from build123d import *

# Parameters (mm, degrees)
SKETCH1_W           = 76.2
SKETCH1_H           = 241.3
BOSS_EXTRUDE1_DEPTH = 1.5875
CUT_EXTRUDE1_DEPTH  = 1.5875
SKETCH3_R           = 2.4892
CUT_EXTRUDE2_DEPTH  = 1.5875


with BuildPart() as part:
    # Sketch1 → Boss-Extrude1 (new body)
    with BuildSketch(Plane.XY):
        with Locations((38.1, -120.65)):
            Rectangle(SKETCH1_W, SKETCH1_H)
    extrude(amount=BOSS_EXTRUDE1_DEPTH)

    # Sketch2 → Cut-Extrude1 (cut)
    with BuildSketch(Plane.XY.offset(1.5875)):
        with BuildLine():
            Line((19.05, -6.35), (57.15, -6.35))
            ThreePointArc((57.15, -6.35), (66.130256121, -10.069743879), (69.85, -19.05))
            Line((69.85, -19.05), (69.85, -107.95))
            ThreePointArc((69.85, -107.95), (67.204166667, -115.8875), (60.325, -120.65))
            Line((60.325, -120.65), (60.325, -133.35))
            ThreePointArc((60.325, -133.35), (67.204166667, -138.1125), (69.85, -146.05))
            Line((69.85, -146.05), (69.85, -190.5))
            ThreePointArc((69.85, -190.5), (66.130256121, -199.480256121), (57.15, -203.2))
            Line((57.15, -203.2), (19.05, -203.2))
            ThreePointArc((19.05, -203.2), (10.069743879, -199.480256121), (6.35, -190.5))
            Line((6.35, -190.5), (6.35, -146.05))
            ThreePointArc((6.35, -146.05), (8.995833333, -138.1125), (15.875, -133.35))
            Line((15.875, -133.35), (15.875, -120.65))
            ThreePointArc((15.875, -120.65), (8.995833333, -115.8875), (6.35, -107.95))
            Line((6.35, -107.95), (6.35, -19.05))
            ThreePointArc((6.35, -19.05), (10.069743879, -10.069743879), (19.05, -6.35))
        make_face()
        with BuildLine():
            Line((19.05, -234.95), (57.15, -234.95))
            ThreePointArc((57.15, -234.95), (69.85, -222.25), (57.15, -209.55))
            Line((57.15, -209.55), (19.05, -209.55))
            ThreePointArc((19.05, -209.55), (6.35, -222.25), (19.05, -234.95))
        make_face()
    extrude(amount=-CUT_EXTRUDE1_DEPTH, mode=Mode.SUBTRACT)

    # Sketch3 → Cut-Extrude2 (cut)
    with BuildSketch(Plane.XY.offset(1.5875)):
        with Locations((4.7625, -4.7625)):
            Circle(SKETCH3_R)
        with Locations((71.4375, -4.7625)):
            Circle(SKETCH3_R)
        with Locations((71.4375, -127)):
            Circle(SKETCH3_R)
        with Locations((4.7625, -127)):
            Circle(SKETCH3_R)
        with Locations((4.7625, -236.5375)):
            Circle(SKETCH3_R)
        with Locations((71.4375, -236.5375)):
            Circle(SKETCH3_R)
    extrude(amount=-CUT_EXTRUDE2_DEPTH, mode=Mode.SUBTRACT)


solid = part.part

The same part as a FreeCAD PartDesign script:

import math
import FreeCAD as App
import Part
import Sketcher

V = App.Vector
Q = App.Units.Quantity

doc = App.newDocument("Part")
body = doc.addObject("PartDesign::Body", "Body")

# Sketch on XY plane
sketch1 = body.newObject("Sketcher::SketchObject", "Sketch")
sketch1.AttachmentSupport = (doc.getObject("XY_Plane"), [""])
sketch1.MapMode = "FlatFace"
sketch1.addGeometry(Part.LineSegment(V(0, 0, 0), V(0, -241, 0)), False)
sketch1.addGeometry(Part.LineSegment(V(0, -241, 0), V(76, -241, 0)), False)
sketch1.addGeometry(Part.LineSegment(V(76, -241, 0), V(76, 0, 0)), False)
sketch1.addGeometry(Part.LineSegment(V(76, 0, 0), V(0, 0, 0)), False)
sketch1.addConstraint(Sketcher.Constraint("Coincident", 0, 2, 1, 1))
sketch1.addConstraint(Sketcher.Constraint("Coincident", 1, 2, 2, 1))
sketch1.addConstraint(Sketcher.Constraint("Coincident", 2, 2, 3, 1))
sketch1.addConstraint(Sketcher.Constraint("Coincident", 3, 2, 0, 1))
sketch1.addConstraint(Sketcher.Constraint("Vertical", 0))
sketch1.addConstraint(Sketcher.Constraint("Horizontal", 1))
sketch1.addConstraint(Sketcher.Constraint("Vertical", 2))
sketch1.addConstraint(Sketcher.Constraint("Horizontal", 3))
sketch1.addConstraint(Sketcher.Constraint("Coincident", 3, 2, -1, 1))
sketch1.addConstraint(Sketcher.Constraint("DistanceX", 1, 1, 1, 2, Q("3 in")))
sketch1.addConstraint(Sketcher.Constraint("DistanceY", 0, 2, 0, 1, Q("9.5 in")))
pad1 = body.newObject("PartDesign::Pad", "Pad")
pad1.Profile = sketch1
pad1.Length = Q("0.0625 in")

# Sketch on XY plane
sketch2 = body.newObject("Sketcher::SketchObject", "Sketch001")
sketch2.AttachmentSupport = (doc.getObject("XY_Plane"), [""])
sketch2.MapMode = "FlatFace"
sketch2.AttachmentOffset = App.Placement(V(0, 0, 0.0625 * 25.4), App.Rotation())
sketch2.addGeometry(Part.LineSegment(V(57, -6, 0), V(19, -6, 0)), False)
sketch2.addGeometry(Part.ArcOfCircle(Part.Circle(V(19, -19, 0), V(0, 0, 1), 13), math.radians(90), math.radians(180)), False)
sketch2.addGeometry(Part.LineSegment(V(6, -19, 0), V(6, -108, 0)), False)
sketch2.addGeometry(Part.ArcOfCircle(Part.Circle(V(20, -108, 0), V(0, 0, 1), 13), math.radians(180), math.radians(254)), False)
sketch2.addGeometry(Part.LineSegment(V(16, -121, 0), V(16, -133, 0)), False)
sketch2.addGeometry(Part.ArcOfCircle(Part.Circle(V(20, -146, 0), V(0, 0, 1), 13), math.radians(106), math.radians(180)), False)
sketch2.addGeometry(Part.LineSegment(V(6, -146, 0), V(6, -190, 0)), False)
sketch2.addGeometry(Part.ArcOfCircle(Part.Circle(V(19, -190, 0), V(0, 0, 1), 13), math.radians(180), math.radians(270)), False)
sketch2.addGeometry(Part.LineSegment(V(19, -203, 0), V(57, -203, 0)), False)
sketch2.addGeometry(Part.ArcOfCircle(Part.Circle(V(57, -190, 0), V(0, 0, 1), 13), math.radians(-90), math.radians(0)), False)
sketch2.addGeometry(Part.LineSegment(V(70, -190, 0), V(70, -146, 0)), False)
sketch2.addGeometry(Part.ArcOfCircle(Part.Circle(V(57, -146, 0), V(0, 0, 1), 13), math.radians(0), math.radians(74)), False)
sketch2.addGeometry(Part.LineSegment(V(60, -133, 0), V(60, -121, 0)), False)
sketch2.addGeometry(Part.ArcOfCircle(Part.Circle(V(57, -108, 0), V(0, 0, 1), 13), math.radians(-74), math.radians(0)), False)
sketch2.addGeometry(Part.LineSegment(V(70, -108, 0), V(70, -19, 0)), False)
sketch2.addGeometry(Part.ArcOfCircle(Part.Circle(V(57, -19, 0), V(0, 0, 1), 13), math.radians(0), math.radians(90)), False)
sketch2.addGeometry(Part.LineSegment(V(19, -235, 0), V(57, -235, 0)), False)
sketch2.addGeometry(Part.ArcOfCircle(Part.Circle(V(57, -222, 0), V(0, 0, 1), 13), math.radians(-90), math.radians(90)), False)
sketch2.addGeometry(Part.LineSegment(V(57, -210, 0), V(19, -210, 0)), False)
sketch2.addGeometry(Part.ArcOfCircle(Part.Circle(V(19, -222, 0), V(0, 0, 1), 13), math.radians(90), math.radians(270)), False)
sketch2.addConstraint(Sketcher.Constraint("Tangent", 0, 2, 1, 1))
sketch2.addConstraint(Sketcher.Constraint("Tangent", 1, 2, 2, 1))
sketch2.addConstraint(Sketcher.Constraint("Tangent", 2, 2, 3, 1))
sketch2.addConstraint(Sketcher.Constraint("Coincident", 3, 2, 4, 1))
sketch2.addConstraint(Sketcher.Constraint("Coincident", 4, 2, 5, 1))
sketch2.addConstraint(Sketcher.Constraint("Tangent", 5, 2, 6, 1))
sketch2.addConstraint(Sketcher.Constraint("Tangent", 6, 2, 7, 1))
sketch2.addConstraint(Sketcher.Constraint("Tangent", 7, 2, 8, 1))
sketch2.addConstraint(Sketcher.Constraint("Tangent", 8, 2, 9, 1))
sketch2.addConstraint(Sketcher.Constraint("Tangent", 9, 2, 10, 1))
sketch2.addConstraint(Sketcher.Constraint("Tangent", 10, 2, 11, 1))
sketch2.addConstraint(Sketcher.Constraint("Coincident", 11, 2, 12, 1))
sketch2.addConstraint(Sketcher.Constraint("Coincident", 12, 2, 13, 1))
sketch2.addConstraint(Sketcher.Constraint("Tangent", 13, 2, 14, 1))
sketch2.addConstraint(Sketcher.Constraint("Tangent", 14, 2, 15, 1))
sketch2.addConstraint(Sketcher.Constraint("Tangent", 15, 2, 0, 1))
sketch2.addConstraint(Sketcher.Constraint("Tangent", 16, 2, 17, 1))
sketch2.addConstraint(Sketcher.Constraint("Tangent", 17, 2, 18, 1))
sketch2.addConstraint(Sketcher.Constraint("Tangent", 18, 2, 19, 1))
sketch2.addConstraint(Sketcher.Constraint("Tangent", 19, 2, 16, 1))
sketch2.addConstraint(Sketcher.Constraint("Horizontal", 0))
sketch2.addConstraint(Sketcher.Constraint("Vertical", 2))
sketch2.addConstraint(Sketcher.Constraint("Vertical", 4))
sketch2.addConstraint(Sketcher.Constraint("Vertical", 6))
sketch2.addConstraint(Sketcher.Constraint("Horizontal", 8))
sketch2.addConstraint(Sketcher.Constraint("Vertical", 10))
sketch2.addConstraint(Sketcher.Constraint("Vertical", 12))
sketch2.addConstraint(Sketcher.Constraint("Vertical", 14))
sketch2.addConstraint(Sketcher.Constraint("Horizontal", 16))
sketch2.addConstraint(Sketcher.Constraint("Horizontal", 18))
sketch2.addConstraint(Sketcher.Constraint("Equal", 3, 5))
sketch2.addConstraint(Sketcher.Constraint("Equal", 1, 7))
sketch2.addConstraint(Sketcher.Constraint("Equal", 7, 9))
sketch2.addConstraint(Sketcher.Constraint("Equal", 5, 11))
sketch2.addConstraint(Sketcher.Constraint("Equal", 11, 13))
sketch2.addConstraint(Sketcher.Constraint("Equal", 9, 15))
sketch2.addConstraint(Sketcher.Constraint("Equal", 15, 17))
sketch2.addConstraint(Sketcher.Constraint("Horizontal", 5, 3, 11, 3))
sketch2.addConstraint(Sketcher.Constraint("Horizontal", 3, 3, 13, 3))
sketch2.addConstraint(Sketcher.Constraint("Horizontal", 4, 2, 11, 2))
sketch2.addConstraint(Sketcher.Constraint("Horizontal", 3, 2, 12, 2))
sketch2.addConstraint(Sketcher.Constraint("Vertical", 3, 3, 5, 3))
sketch2.addConstraint(Sketcher.Constraint("Vertical", 15, 3, 17, 3))
sketch2.addConstraint(Sketcher.Constraint("Vertical", 7, 3, 19, 3))
sketch2.addConstraint(Sketcher.Constraint("Radius", 1, Q("0.5 in")))
sketch2.addConstraint(Sketcher.Constraint("DistanceX", 0, 2, 0, 1, Q("1.5 in")))
sketch2.addConstraint(Sketcher.Constraint("DistanceY", 2, 2, 2, 1, Q("3.5 in")))
sketch2.addConstraint(Sketcher.Constraint("DistanceY", 4, 2, 4, 1, Q("0.5 in")))
sketch2.addConstraint(Sketcher.Constraint("DistanceY", 7, 2, -1, 1, Q("8 in")))
sketch2.addConstraint(Sketcher.Constraint("DistanceY", 5, 3, 1, 3, Q("5 in")))
sketch2.addConstraint(Sketcher.Constraint("DistanceY", 17, 3, 11, 3, Q("3 in")))
sketch2.addConstraint(Sketcher.Constraint("DistanceY", 6, 2, 6, 1, Q("1.75 in")))
sketch2.addConstraint(Sketcher.Constraint("DistanceX", -1, 1, 1, 3, Q("0.75 in")))
sketch2.addConstraint(Sketcher.Constraint("DistanceX", 4, 2, 11, 2, Q("1.75 in")))
pocket1 = body.newObject("PartDesign::Pocket", "Pocket")
pocket1.Profile = sketch2
pocket1.Length = Q("0.0625 in")

# Sketch on XY plane
sketch3 = body.newObject("Sketcher::SketchObject", "Sketch002")
sketch3.AttachmentSupport = (doc.getObject("XY_Plane"), [""])
sketch3.MapMode = "FlatFace"
sketch3.AttachmentOffset = App.Placement(V(0, 0, 0.0625 * 25.4), App.Rotation())
sketch3.addGeometry(Part.Circle(V(4.8, -4.8, 0), V(0, 0, 1), 2.5), False)
sketch3.addGeometry(Part.Circle(V(71.4, -4.8, 0), V(0, 0, 1), 2.5), False)
sketch3.addGeometry(Part.Circle(V(71.4, -127, 0), V(0, 0, 1), 2.5), False)
sketch3.addGeometry(Part.Circle(V(4.8, -127, 0), V(0, 0, 1), 2.5), False)
sketch3.addGeometry(Part.Circle(V(4.8, -236.5, 0), V(0, 0, 1), 2.5), False)
sketch3.addGeometry(Part.Circle(V(71.4, -236.5, 0), V(0, 0, 1), 2.5), False)
sketch3.addConstraint(Sketcher.Constraint("Equal", 0, 1))
sketch3.addConstraint(Sketcher.Constraint("Equal", 1, 2))
sketch3.addConstraint(Sketcher.Constraint("Equal", 2, 3))
sketch3.addConstraint(Sketcher.Constraint("Equal", 3, 4))
sketch3.addConstraint(Sketcher.Constraint("Equal", 4, 5))
sketch3.addConstraint(Sketcher.Constraint("Horizontal", 0, 3, 1, 3))
sketch3.addConstraint(Sketcher.Constraint("Horizontal", 2, 3, 3, 3))
sketch3.addConstraint(Sketcher.Constraint("Horizontal", 4, 3, 5, 3))
sketch3.addConstraint(Sketcher.Constraint("Vertical", 1, 3, 2, 3))
sketch3.addConstraint(Sketcher.Constraint("Vertical", 0, 3, 3, 3))
sketch3.addConstraint(Sketcher.Constraint("Vertical", 3, 3, 4, 3))
sketch3.addConstraint(Sketcher.Constraint("Vertical", 2, 3, 5, 3))
sketch3.addConstraint(Sketcher.Constraint("Diameter", 0, Q("0.196 in")))
sketch3.addConstraint(Sketcher.Constraint("DistanceY", 2, 3, -1, 1, Q("5 in")))
sketch3.addConstraint(Sketcher.Constraint("DistanceX", -1, 1, 0, 3, Q("0.1875 in")))
sketch3.addConstraint(Sketcher.Constraint("DistanceY", 0, 3, -1, 1, Q("0.1875 in")))
sketch3.addConstraint(Sketcher.Constraint("DistanceX", -1, 1, 1, 3, Q("2.8125 in")))
sketch3.addConstraint(Sketcher.Constraint("DistanceY", 4, 3, -1, 1, Q("9.3125 in")))
pocket2 = body.newObject("PartDesign::Pocket", "Pocket001")
pocket2.Profile = sketch3
pocket2.Length = Q("0.0625 in")

doc.recompute()
